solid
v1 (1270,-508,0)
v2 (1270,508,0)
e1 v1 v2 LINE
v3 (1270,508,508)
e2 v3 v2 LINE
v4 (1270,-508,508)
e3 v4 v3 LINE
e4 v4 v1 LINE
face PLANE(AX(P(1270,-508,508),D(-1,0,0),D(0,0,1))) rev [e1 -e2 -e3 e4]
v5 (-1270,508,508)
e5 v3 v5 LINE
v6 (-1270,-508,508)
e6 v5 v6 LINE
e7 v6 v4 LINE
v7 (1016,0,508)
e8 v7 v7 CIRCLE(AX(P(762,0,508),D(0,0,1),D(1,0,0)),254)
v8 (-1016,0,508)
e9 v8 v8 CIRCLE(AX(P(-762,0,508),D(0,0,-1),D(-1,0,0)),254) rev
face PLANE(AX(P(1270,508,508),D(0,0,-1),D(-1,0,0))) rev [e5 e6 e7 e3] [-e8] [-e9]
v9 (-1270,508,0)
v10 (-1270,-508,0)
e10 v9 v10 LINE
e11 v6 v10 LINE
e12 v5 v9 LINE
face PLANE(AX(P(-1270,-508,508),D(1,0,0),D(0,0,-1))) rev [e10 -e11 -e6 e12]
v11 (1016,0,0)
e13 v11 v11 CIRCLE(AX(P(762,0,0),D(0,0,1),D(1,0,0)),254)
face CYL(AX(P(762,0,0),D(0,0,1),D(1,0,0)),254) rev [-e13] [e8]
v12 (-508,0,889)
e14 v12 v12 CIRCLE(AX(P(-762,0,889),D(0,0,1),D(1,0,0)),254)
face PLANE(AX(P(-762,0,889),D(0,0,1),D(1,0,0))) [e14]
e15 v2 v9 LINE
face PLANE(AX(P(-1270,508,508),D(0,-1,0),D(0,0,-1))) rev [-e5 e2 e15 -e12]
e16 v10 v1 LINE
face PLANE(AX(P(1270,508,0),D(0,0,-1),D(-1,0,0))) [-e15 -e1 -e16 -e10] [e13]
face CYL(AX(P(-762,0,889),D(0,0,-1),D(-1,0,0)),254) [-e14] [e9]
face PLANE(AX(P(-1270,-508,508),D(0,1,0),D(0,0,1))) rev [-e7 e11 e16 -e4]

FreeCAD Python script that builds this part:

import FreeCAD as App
import Part
import Sketcher
Q = App.Units.Quantity


def add_polygon(sketch, points):
    """Adds a closed chain of lines whose ends are joined by coincident constraints."""
    first, n = sketch.GeometryCount, len(points)
    for a, b in zip(points, points[1:] + points[:1]):
        sketch.addGeometry(Part.LineSegment(App.Vector(*a, 0), App.Vector(*b, 0)), False)
    for i in range(n):
        sketch.addConstraint(Sketcher.Constraint("Coincident", first + i, 2, first + (i + 1) % n, 1))

doc = App.newDocument("Part")
body = doc.addObject("PartDesign::Body", "Body")

# Sketch on XY plane
sketch1 = doc.addObject("Sketcher::SketchObject", "Sketch")
body.addObject(sketch1)
sketch1.AttachmentSupport = (doc.XY_Plane, [""])
sketch1.MapMode = "FlatFace"
add_polygon(sketch1, [(-1270, 508), (-1270, -508), (1270, -508), (1270, 508)])  # lines 0-3
sketch1.addConstraint([
    Sketcher.Constraint("Vertical", 0),
    Sketcher.Constraint("Horizontal", 1),
    Sketcher.Constraint("Vertical", 2),
    Sketcher.Constraint("Horizontal", 3),
    Sketcher.Constraint("Symmetric", 0, 2, 2, 2, -1, 1),
    Sketcher.Constraint("DistanceX", 1, 1, 1, 2, Q("100 in")),
    Sketcher.Constraint("DistanceY", 0, 2, 0, 1, Q("40 in")),
])
pad1 = doc.addObject("PartDesign::Pad", "Pad")
body.addObject(pad1)
pad1.Profile = sketch1
pad1.Length = Q("20 in")

# Sketch on XY plane
sketch2 = doc.addObject("Sketcher::SketchObject", "Sketch001")
body.addObject(sketch2)
sketch2.AttachmentSupport = (doc.XY_Plane, [""])
sketch2.MapMode = "FlatFace"
sketch2.AttachmentOffset = App.Placement(App.Vector(0, 0, 20 * 25.4), App.Rotation())
sketch2.addGeometry(Part.Circle(App.Vector(-762, 0, 0), App.Vector(0, 0, 1), 254), False)
sketch2.addConstraint([
    Sketcher.Constraint("PointOnObject", 0, 3, -1),
    Sketcher.Constraint("Diameter", 0, Q("20 in")),
    Sketcher.Constraint("DistanceX", 0, 3, -1, 1, Q("30 in")),
])
pad2 = doc.addObject("PartDesign::Pad", "Pad001")
body.addObject(pad2)
pad2.Profile = sketch2
pad2.Length = Q("15 in")

# Sketch on XY plane
sketch3 = doc.addObject("Sketcher::SketchObject", "Sketch002")
body.addObject(sketch3)
sketch3.AttachmentSupport = (doc.XY_Plane, [""])
sketch3.MapMode = "FlatFace"
sketch3.AttachmentOffset = App.Placement(App.Vector(0, 0, 20 * 25.4), App.Rotation())
sketch3.addGeometry(Part.Circle(App.Vector(762, 0, 0), App.Vector(0, 0, 1), 254), False)
sketch3.addConstraint([
    Sketcher.Constraint("PointOnObject", 0, 3, -1),
    Sketcher.Constraint("Diameter", 0, Q("20 in")),
    Sketcher.Constraint("DistanceX", -1, 1, 0, 3, Q("30 in")),
])
pocket1 = doc.addObject("PartDesign::Pocket", "Pocket")
body.addObject(pocket1)
pocket1.Profile = sketch3
pocket1.Length = Q("20 in")

doc.recompute()
